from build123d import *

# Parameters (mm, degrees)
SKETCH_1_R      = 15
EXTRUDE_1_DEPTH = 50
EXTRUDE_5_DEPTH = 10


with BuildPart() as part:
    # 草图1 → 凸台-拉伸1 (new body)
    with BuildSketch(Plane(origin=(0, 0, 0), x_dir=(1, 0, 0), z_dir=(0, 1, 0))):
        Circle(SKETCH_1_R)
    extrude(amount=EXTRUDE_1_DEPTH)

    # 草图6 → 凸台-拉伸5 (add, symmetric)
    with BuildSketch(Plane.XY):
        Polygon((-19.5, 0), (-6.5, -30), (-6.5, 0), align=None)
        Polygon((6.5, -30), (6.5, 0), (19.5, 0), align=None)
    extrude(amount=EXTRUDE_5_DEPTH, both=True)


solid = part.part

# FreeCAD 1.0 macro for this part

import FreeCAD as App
import Part
import Sketcher
from FreeCAD import Vector


def add_polygon(sketch, points):
    """Adds a closed chain of lines whose ends are joined by coincident constraints."""
    first, n = sketch.GeometryCount, len(points)
    for a, b in zip(points, points[1:] + points[:1]):
        sketch.addGeometry(Part.LineSegment(App.Vector(*a, 0), App.Vector(*b, 0)), False)
    for i in range(n):
        sketch.addConstraint(Sketcher.Constraint("Coincident", first + i, 2, first + (i + 1) % n, 1))

doc = App.newDocument("Part")
body = doc.addObject("PartDesign::Body", "Body")

sketch1 = doc.addObject("Sketcher::SketchObject", "Sketch")
body.addObject(sketch1)
sketch1.AttachmentSupport = (doc.XZ_Plane, [""])
sketch1.MapMode = "FlatFace"
sketch1.addGeometry(Part.Circle(Vector(0, 0, 0), Vector(0, 0, 1), 15), False)
sketch1.addConstraint([
    Sketcher.Constraint("Coincident", 0, 3, -1, 1),
    Sketcher.Constraint("Diameter", 0, 30.0),
])
pad1 = doc.addObject("PartDesign::Pad", "Pad")
body.addObject(pad1)
pad1.Profile = sketch1
pad1.Length = 50
pad1.Reversed = True

sketch2 = doc.addObject("Sketcher::SketchObject", "Sketch001")
body.addObject(sketch2)
sketch2.AttachmentSupport = (doc.XY_Plane, [""])
sketch2.MapMode = "FlatFace"
add_polygon(sketch2, [(-20, 0), (-6, -30), (-6, 0)])
add_polygon(sketch2, [(6, 0), (6, -30), (20, 0)])
sketch2.addConstraint([
    Sketcher.Constraint("Vertical", 1),
    Sketcher.Constraint("Horizontal", 2),
    Sketcher.Constraint("Vertical", 3),
    Sketcher.Constraint("Horizontal", 5),
    Sketcher.Constraint("Symmetric", 2, 2, 4, 2, -1, 1),
    Sketcher.Constraint("Symmetric", 0, 2, 3, 2, -2),
    Sketcher.Constraint("PointOnObject", 1, 2, -1),
    Sketcher.Constraint("DistanceX", 2, 2, 2, 1, 13.0),
    Sketcher.Constraint("DistanceY", 1, 1, 1, 2, 30.0),
    Sketcher.Constraint("DistanceX", 0, 2, 3, 2, 13.0),
])
pad2 = doc.addObject("PartDesign::Pad", "Pad001")
body.addObject(pad2)
pad2.Profile = sketch2
pad2.Length = 20
pad2.Midplane = True

doc.recompute()
